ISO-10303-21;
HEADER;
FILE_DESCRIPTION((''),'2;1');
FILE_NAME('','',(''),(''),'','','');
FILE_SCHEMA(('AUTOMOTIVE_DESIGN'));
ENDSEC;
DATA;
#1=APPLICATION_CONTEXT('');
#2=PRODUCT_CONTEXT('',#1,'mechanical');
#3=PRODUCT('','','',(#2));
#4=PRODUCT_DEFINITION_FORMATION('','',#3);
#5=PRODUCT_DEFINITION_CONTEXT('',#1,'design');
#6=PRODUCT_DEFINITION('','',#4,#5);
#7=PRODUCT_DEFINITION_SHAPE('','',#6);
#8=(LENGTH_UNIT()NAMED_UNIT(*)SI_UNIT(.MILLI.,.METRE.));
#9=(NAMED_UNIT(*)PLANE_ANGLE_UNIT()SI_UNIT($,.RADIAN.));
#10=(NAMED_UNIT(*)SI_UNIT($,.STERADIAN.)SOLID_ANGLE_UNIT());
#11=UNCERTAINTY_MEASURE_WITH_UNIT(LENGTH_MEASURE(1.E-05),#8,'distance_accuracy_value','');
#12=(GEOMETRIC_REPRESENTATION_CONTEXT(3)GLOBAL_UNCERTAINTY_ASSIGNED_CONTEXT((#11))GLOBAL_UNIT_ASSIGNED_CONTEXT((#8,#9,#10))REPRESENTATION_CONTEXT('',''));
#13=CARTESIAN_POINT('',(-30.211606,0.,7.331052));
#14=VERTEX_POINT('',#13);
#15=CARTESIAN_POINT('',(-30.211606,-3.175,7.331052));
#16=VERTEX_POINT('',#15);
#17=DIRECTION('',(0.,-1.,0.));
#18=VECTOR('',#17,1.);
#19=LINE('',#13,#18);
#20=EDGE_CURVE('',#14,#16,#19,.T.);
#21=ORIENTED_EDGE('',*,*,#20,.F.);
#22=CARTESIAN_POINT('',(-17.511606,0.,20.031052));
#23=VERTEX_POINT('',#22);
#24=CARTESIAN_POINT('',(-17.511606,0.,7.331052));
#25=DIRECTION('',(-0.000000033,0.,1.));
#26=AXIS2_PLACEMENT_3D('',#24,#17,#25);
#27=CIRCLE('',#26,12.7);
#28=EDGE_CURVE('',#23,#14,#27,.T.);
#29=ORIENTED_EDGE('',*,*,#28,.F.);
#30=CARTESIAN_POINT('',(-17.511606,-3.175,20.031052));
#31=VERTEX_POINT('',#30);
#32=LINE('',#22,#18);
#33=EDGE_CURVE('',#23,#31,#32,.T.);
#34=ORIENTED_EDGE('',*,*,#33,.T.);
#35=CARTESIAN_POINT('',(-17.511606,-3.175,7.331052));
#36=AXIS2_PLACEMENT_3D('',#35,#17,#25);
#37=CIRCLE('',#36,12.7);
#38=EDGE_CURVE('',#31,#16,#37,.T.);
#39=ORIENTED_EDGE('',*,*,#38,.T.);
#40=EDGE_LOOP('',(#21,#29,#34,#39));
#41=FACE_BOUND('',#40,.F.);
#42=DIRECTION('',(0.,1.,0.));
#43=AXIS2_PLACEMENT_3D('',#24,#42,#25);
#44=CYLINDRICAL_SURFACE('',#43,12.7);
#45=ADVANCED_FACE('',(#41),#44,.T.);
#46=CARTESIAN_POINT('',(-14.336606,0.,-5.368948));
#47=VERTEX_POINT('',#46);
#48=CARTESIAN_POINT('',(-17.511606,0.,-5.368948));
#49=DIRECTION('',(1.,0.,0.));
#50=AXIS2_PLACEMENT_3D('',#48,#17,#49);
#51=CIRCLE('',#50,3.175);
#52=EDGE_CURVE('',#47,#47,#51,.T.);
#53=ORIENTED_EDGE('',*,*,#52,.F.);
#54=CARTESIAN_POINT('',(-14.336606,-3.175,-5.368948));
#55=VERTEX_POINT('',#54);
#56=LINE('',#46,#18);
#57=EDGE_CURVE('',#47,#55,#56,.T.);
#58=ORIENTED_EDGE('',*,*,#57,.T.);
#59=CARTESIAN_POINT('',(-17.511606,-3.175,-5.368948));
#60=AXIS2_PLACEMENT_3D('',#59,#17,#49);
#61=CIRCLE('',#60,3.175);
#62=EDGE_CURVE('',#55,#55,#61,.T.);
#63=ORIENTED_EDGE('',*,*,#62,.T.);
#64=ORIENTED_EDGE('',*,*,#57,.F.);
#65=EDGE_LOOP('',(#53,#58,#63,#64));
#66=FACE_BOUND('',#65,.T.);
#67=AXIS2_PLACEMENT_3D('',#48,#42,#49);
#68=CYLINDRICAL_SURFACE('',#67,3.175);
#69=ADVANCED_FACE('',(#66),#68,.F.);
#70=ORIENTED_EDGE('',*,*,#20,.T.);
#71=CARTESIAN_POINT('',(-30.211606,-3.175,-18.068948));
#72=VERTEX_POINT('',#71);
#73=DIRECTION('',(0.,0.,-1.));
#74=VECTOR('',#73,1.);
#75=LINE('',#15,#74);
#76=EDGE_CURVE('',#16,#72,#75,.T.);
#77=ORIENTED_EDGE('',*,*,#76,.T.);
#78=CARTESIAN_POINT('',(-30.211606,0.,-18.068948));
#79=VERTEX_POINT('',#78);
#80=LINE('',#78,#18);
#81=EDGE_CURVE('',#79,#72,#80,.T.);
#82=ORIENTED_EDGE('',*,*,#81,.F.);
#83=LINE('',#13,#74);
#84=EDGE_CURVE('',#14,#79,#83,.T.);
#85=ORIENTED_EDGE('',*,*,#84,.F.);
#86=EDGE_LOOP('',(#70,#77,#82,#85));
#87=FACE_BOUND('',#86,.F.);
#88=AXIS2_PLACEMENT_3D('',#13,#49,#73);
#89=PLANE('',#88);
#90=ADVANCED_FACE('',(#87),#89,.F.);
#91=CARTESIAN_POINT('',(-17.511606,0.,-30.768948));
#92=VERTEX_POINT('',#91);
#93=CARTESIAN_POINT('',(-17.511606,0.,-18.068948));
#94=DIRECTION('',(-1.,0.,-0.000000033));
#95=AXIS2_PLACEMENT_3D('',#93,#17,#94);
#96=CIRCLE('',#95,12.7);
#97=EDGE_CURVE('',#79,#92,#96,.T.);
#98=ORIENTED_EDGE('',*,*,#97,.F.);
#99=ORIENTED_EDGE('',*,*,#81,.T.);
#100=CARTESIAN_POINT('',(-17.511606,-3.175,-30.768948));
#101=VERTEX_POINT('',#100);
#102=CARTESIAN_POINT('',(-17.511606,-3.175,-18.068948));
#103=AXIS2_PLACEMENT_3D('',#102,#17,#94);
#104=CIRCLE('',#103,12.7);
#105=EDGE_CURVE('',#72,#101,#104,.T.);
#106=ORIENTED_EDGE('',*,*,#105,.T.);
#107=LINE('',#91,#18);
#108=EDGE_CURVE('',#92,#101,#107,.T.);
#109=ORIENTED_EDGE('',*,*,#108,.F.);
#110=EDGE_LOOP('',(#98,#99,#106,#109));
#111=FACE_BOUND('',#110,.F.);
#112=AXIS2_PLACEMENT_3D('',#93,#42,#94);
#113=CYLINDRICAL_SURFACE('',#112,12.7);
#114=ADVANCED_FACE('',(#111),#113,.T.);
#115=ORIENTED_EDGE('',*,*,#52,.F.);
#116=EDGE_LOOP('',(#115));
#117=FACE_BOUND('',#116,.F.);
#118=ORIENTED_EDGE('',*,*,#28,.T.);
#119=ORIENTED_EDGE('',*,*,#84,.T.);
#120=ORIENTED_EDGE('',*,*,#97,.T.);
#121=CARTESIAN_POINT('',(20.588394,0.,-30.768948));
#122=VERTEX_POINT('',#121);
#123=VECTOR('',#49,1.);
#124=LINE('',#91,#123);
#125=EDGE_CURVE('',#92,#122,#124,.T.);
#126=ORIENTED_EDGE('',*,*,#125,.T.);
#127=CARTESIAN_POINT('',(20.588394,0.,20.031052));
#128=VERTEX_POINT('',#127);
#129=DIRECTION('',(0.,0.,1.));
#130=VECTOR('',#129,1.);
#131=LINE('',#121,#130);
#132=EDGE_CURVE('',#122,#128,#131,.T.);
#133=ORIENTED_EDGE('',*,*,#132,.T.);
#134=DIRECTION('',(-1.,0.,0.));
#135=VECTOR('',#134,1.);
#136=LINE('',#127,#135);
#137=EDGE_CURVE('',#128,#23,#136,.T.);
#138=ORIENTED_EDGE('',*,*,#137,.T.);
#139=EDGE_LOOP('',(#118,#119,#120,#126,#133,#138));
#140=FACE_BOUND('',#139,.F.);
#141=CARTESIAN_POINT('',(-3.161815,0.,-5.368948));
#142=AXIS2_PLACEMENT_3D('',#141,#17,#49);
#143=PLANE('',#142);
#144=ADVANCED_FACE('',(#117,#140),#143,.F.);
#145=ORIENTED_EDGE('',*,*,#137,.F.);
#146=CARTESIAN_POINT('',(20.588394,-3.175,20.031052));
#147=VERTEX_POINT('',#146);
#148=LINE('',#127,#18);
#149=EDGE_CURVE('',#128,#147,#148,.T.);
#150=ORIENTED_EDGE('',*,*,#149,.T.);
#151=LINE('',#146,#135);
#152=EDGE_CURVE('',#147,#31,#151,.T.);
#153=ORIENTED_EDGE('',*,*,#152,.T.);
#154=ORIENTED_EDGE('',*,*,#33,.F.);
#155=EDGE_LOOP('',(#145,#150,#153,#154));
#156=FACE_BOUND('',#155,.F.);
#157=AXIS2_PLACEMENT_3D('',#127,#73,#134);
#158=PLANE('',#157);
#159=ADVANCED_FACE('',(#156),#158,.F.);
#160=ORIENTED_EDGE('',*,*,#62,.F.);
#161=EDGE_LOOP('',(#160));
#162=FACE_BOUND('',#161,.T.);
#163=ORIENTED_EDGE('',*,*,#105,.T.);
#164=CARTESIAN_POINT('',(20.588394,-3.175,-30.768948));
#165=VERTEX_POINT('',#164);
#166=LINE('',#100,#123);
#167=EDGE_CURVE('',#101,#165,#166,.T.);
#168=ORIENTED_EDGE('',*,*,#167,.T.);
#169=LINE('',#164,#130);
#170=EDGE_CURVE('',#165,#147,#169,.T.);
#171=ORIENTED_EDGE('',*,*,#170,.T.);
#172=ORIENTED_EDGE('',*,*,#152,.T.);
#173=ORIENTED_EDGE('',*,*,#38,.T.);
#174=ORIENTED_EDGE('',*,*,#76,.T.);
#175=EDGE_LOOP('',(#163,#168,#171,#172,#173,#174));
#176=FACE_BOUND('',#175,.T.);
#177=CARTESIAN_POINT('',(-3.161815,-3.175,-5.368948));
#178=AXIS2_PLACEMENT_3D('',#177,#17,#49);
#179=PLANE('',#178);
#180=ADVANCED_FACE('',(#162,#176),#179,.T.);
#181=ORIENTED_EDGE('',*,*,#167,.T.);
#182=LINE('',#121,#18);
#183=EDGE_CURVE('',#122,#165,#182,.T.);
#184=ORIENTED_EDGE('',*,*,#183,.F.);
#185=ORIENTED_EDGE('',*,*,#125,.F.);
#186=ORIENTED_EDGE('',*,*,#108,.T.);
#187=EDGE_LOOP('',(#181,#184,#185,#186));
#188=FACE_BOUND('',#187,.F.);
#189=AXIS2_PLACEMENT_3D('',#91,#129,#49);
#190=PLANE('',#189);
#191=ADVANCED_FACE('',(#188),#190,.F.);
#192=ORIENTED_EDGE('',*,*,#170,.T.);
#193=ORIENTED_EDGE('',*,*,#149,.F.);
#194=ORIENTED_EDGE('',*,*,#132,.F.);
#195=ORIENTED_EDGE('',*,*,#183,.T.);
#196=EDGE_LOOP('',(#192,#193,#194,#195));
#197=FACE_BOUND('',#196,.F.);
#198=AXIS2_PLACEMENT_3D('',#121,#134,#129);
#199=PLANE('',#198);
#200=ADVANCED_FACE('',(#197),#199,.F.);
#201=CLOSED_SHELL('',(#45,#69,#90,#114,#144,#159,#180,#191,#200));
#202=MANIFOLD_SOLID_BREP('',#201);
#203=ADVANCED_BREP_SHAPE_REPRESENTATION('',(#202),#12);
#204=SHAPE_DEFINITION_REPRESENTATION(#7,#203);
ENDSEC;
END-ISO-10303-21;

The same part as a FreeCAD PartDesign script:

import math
import FreeCAD as App
import Part
import Sketcher

V = App.Vector
Q = App.Units.Quantity

doc = App.newDocument("Part")
body = doc.addObject("PartDesign::Body", "Body")

# Sketch on XZ plane
sketch1 = body.newObject("Sketcher::SketchObject", "Sketch")
sketch1.AttachmentSupport = (doc.getObject("XZ_Plane"), [""])
sketch1.MapMode = "FlatFace"
sketch1.addGeometry(Part.LineSegment(V(20.588394, 20.031052, 0), V(-17.511606, 20.031052, 0)), False)
sketch1.addGeometry(Part.ArcOfCircle(Part.Circle(V(-17.511606, 7.331052, 0), V(0, 0, 1), 12.7), math.radians(90.000002), math.radians(179.999998)), False)
sketch1.addGeometry(Part.LineSegment(V(-30.211606, 7.331052, 0), V(-30.211606, -18.068948, 0)), False)
sketch1.addGeometry(Part.ArcOfCircle(Part.Circle(V(-17.511606, -18.068948, 0), V(0, 0, 1), 12.7), math.radians(-179.999998), math.radians(-90.000002)), False)
sketch1.addGeometry(Part.LineSegment(V(-17.511606, -30.768948, 0), V(20.588394, -30.768948, 0)), False)
sketch1.addGeometry(Part.LineSegment(V(20.588394, -30.768948, 0), V(20.588394, 20.031052, 0)), False)
sketch1.addGeometry(Part.Circle(V(-17.511606, -5.368948, 0), V(0, 0, 1), 3.175), False)
sketch1.addConstraint(Sketcher.Constraint("Tangent", 0, 2, 1, 1))
sketch1.addConstraint(Sketcher.Constraint("Tangent", 1, 2, 2, 1))
sketch1.addConstraint(Sketcher.Constraint("Tangent", 2, 2, 3, 1))
sketch1.addConstraint(Sketcher.Constraint("Tangent", 3, 2, 4, 1))
sketch1.addConstraint(Sketcher.Constraint("Coincident", 4, 2, 5, 1))
sketch1.addConstraint(Sketcher.Constraint("Coincident", 5, 2, 0, 1))
sketch1.addConstraint(Sketcher.Constraint("Horizontal", 0))
sketch1.addConstraint(Sketcher.Constraint("Vertical", 2))
sketch1.addConstraint(Sketcher.Constraint("Horizontal", 4))
sketch1.addConstraint(Sketcher.Constraint("Vertical", 5))
sketch1.addConstraint(Sketcher.Constraint("Equal", 1, 3))
sketch1.addConstraint(Sketcher.Constraint("Vertical", 3, 3, 6, 3))
sketch1.addConstraint(Sketcher.Constraint("Radius", 1, Q("0.5 in")))
sketch1.addConstraint(Sketcher.Constraint("Diameter", 6, Q("0.25 in")))
sketch1.addConstraint(Sketcher.Constraint("DistanceY", 2, 2, 2, 1, Q("1 in")))
sketch1.addConstraint(Sketcher.Constraint("DistanceX", 0, 2, 0, 1, Q("1.5 in")))
sketch1.addConstraint(Sketcher.Constraint("DistanceY", 6, 3, 0, 2, Q("1 in")))
sketch1.addConstraint(Sketcher.Constraint("DistanceY", -1, 1, 1, 3, Q("7.331052 mm")))
sketch1.addConstraint(Sketcher.Constraint("DistanceX", 1, 3, -1, 1, Q("17.511606 mm")))
pad1 = body.newObject("PartDesign::Pad", "Pad")
pad1.Profile = sketch1
pad1.Length = Q("0.125 in")

doc.recompute()
